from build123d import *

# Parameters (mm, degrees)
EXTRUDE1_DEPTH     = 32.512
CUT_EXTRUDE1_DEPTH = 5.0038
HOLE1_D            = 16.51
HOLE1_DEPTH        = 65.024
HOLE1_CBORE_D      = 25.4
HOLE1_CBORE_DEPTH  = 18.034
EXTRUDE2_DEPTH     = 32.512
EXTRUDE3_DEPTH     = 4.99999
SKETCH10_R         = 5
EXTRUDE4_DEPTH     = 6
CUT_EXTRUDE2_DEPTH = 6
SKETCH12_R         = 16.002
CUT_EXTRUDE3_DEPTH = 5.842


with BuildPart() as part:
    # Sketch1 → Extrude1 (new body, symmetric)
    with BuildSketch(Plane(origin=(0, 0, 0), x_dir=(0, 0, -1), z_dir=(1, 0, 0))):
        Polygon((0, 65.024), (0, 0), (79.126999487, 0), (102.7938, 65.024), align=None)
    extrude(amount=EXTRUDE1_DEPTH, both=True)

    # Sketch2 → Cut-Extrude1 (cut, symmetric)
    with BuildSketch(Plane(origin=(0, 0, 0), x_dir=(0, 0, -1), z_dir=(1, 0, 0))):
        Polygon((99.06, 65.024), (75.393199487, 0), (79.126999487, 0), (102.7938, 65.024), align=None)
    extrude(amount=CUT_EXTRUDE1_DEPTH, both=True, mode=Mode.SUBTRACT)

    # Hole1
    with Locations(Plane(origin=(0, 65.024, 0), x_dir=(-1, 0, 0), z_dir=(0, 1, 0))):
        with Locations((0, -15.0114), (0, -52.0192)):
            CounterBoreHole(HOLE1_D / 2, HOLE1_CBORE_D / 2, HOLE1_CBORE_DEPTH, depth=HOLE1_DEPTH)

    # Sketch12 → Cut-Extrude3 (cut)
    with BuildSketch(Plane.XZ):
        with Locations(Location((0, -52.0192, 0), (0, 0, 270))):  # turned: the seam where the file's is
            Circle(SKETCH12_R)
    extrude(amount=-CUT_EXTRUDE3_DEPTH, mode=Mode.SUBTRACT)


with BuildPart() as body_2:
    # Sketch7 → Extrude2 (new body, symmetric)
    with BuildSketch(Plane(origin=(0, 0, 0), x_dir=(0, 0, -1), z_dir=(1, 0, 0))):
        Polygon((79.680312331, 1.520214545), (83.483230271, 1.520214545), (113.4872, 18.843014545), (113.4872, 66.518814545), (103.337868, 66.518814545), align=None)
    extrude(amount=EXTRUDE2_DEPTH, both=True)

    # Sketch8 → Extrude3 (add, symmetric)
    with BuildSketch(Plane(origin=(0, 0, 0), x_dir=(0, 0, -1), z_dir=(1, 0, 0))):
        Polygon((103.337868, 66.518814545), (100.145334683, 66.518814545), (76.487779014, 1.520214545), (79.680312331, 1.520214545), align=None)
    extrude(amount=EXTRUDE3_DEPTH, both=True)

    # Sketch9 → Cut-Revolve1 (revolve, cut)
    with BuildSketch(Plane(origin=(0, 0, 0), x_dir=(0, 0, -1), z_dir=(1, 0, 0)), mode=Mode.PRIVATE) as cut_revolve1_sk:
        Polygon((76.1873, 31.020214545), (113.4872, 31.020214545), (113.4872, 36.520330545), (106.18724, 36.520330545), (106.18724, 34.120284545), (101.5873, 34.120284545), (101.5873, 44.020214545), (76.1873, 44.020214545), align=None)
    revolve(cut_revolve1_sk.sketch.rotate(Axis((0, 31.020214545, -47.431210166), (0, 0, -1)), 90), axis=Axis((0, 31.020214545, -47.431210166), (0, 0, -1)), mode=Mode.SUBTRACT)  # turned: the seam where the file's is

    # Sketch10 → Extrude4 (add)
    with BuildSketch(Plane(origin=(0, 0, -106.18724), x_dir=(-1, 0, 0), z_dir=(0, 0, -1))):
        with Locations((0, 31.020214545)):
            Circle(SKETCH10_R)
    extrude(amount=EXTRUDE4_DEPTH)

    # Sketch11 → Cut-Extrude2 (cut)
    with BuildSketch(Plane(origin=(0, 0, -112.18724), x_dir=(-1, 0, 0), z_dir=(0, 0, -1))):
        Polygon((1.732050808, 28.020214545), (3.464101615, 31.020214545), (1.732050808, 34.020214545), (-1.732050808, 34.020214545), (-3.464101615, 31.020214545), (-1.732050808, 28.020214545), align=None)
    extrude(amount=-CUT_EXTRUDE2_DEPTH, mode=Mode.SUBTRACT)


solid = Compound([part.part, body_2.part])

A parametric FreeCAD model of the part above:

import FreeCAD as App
import Part
import Sketcher
from FreeCAD import Vector
Q = App.Units.Quantity

doc = App.newDocument("Part")
body = doc.addObject("PartDesign::Body", "Body")

sketch1 = doc.addObject("Sketcher::SketchObject", "Sketch")
body.addObject(sketch1)
sketch1.AttachmentSupport = (doc.YZ_Plane, [""])
sketch1.MapMode = "FlatFace"
sketch1.addGeometry(Part.LineSegment(Vector(65, 0, 0), Vector(0, 0, 0)), False)
sketch1.addGeometry(Part.LineSegment(Vector(0, 0, 0), Vector(0, -79, 0)), False)
sketch1.addGeometry(Part.LineSegment(Vector(0, -79, 0), Vector(65, -103, 0)), False)
sketch1.addGeometry(Part.LineSegment(Vector(65, -103, 0), Vector(65, 0, 0)), False)
sketch1.addConstraint(Sketcher.Constraint("Coincident", 0, 2, 1, 1))
sketch1.addConstraint(Sketcher.Constraint("Coincident", 1, 2, 2, 1))
sketch1.addConstraint(Sketcher.Constraint("Coincident", 2, 2, 3, 1))
sketch1.addConstraint(Sketcher.Constraint("Coincident", 3, 2, 0, 1))
sketch1.addConstraint(Sketcher.Constraint("Horizontal", 0))
sketch1.addConstraint(Sketcher.Constraint("Vertical", 1))
sketch1.addConstraint(Sketcher.Constraint("Vertical", 3))
sketch1.addConstraint(Sketcher.Constraint("Coincident", 0, 2, -1, 1))
sketch1.addConstraint(Sketcher.Constraint("Angle", 2, Q("-20 deg")))
sketch1.addConstraint(Sketcher.Constraint("DistanceX", 0, 2, 0, 1, Q("2.56 in")))
sketch1.addConstraint(Sketcher.Constraint("DistanceY", 3, 1, 3, 2, Q("4.047 in")))
pad1 = doc.addObject("PartDesign::Pad", "Pad")
body.addObject(pad1)
pad1.Profile = sketch1
pad1.Length = Q("2.56 in")
pad1.Midplane = True

sketch2 = doc.addObject("Sketcher::SketchObject", "Sketch001")
body.addObject(sketch2)
sketch2.AttachmentSupport = (doc.YZ_Plane, [""])
sketch2.MapMode = "FlatFace"
sketch2.addGeometry(Part.LineSegment(Vector(65, -99.1, 0), Vector(0, -75.4, 0)), False)
sketch2.addGeometry(Part.LineSegment(Vector(0, -75.4, 0), Vector(0, -79.1, 0)), False)
sketch2.addGeometry(Part.LineSegment(Vector(0, -79.1, 0), Vector(65, -102.8, 0)), False)
sketch2.addGeometry(Part.LineSegment(Vector(65, -102.8, 0), Vector(65, -99.1, 0)), False)
sketch2.addConstraint(Sketcher.Constraint("Coincident", 0, 2, 1, 1))
sketch2.addConstraint(Sketcher.Constraint("Coincident", 1, 2, 2, 1))
sketch2.addConstraint(Sketcher.Constraint("Coincident", 2, 2, 3, 1))
sketch2.addConstraint(Sketcher.Constraint("Coincident", 3, 2, 0, 1))
sketch2.addConstraint(Sketcher.Constraint("Vertical", 1))
sketch2.addConstraint(Sketcher.Constraint("Vertical", 3))
sketch2.addConstraint(Sketcher.Constraint("PointOnObject", 0, 2, -2))
sketch2.addConstraint(Sketcher.Constraint("Parallel", 0, 2))
sketch2.addConstraint(Sketcher.Constraint("Angle", 0, Q("160 deg")))
sketch2.addConstraint(Sketcher.Constraint("DistanceY", 3, 2, -1, 1, Q("3.9 in")))
sketch2.addConstraint(Sketcher.Constraint("DistanceY", 1, 2, 1, 1, Q("0.147 in")))
sketch2.addConstraint(Sketcher.Constraint("DistanceX", -1, 1, 2, 2, Q("2.56 in")))
pocket1 = doc.addObject("PartDesign::Pocket", "Pocket")
body.addObject(pocket1)
pocket1.Profile = sketch2
pocket1.Length = Q("0.394 in")
pocket1.Midplane = True

sketch3 = doc.addObject("Sketcher::SketchObject", "Sketch002")
body.addObject(sketch3)
sketch3.AttachmentSupport = (doc.XZ_Plane, [""])
sketch3.MapMode = "FlatFace"
sketch3.AttachmentOffset = App.Placement(Vector(0, 0, -2.56 * 25.4), App.Rotation())
sketch3.addGeometry(Part.Circle(Vector(0, -15, 0), Vector(0, 0, 1), 8), False)
sketch3.addGeometry(Part.Circle(Vector(0, -52, 0), Vector(0, 0, 1), 8), False)
sketch3.addConstraint(Sketcher.Constraint("Equal", 0, 1))
sketch3.addConstraint(Sketcher.Constraint("PointOnObject", 0, 3, -2))
sketch3.addConstraint(Sketcher.Constraint("PointOnObject", 1, 3, -2))
sketch3.addConstraint(Sketcher.Constraint("Diameter", 0, Q("0.65 in")))
sketch3.addConstraint(Sketcher.Constraint("DistanceY", 0, 3, -1, 1, Q("0.591 in")))
sketch3.addConstraint(Sketcher.Constraint("DistanceY", 1, 3, -1, 1, Q("2.048 in")))
doc.recompute()
hole = doc.addObject("PartDesign::Hole", "Hole")
body.addObject(hole)
hole.Profile = sketch3
hole.ThreadType = "None"
hole.Diameter = Q("0.65 in")
hole.DepthType = "Dimension"
hole.Depth = Q("2.56 in")
hole.DrillPoint = "Flat"
hole.HoleCutType = "Counterbore"
hole.HoleCutDiameter = Q("1 in")
hole.HoleCutDepth = Q("0.71 in")
hole.Reversed = True

sketch4 = doc.addObject("Sketcher::SketchObject", "Sketch003")
body.addObject(sketch4)
sketch4.AttachmentSupport = (doc.XZ_Plane, [""])
sketch4.MapMode = "FlatFace"
sketch4.addGeometry(Part.Circle(Vector(0, -52, 0), Vector(0, 0, 1), 16), False)
sketch4.addConstraint(Sketcher.Constraint("PointOnObject", 0, 3, -2))
sketch4.addConstraint(Sketcher.Constraint("Diameter", 0, Q("1.26 in")))
sketch4.addConstraint(Sketcher.Constraint("DistanceY", 0, 3, -1, 1, Q("2.048 in")))
pocket2 = doc.addObject("PartDesign::Pocket", "Pocket001")
body.addObject(pocket2)
pocket2.Profile = sketch4
pocket2.Length = Q("0.23 in")
body2 = doc.addObject("PartDesign::Body", "Body001")

sketch5 = doc.addObject("Sketcher::SketchObject", "Sketch004")
body2.addObject(sketch5)
sketch5.AttachmentSupport = (doc.getObject("YZ_Plane001"), [""])
sketch5.MapMode = "FlatFace"
sketch5.addGeometry(Part.LineSegment(Vector(1.5, -79.7, 0), Vector(1.5, -83.5, 0)), False)
sketch5.addGeometry(Part.LineSegment(Vector(1.5, -83.5, 0), Vector(18.8, -113.5, 0)), False)
sketch5.addGeometry(Part.LineSegment(Vector(18.8, -113.5, 0), Vector(66.5, -113.5, 0)), False)
sketch5.addGeometry(Part.LineSegment(Vector(66.5, -113.5, 0), Vector(66.5, -103.3, 0)), False)
sketch5.addGeometry(Part.LineSegment(Vector(66.5, -103.3, 0), Vector(1.5, -79.7, 0)), False)
sketch5.addConstraint(Sketcher.Constraint("Coincident", 0, 2, 1, 1))
sketch5.addConstraint(Sketcher.Constraint("Coincident", 1, 2, 2, 1))
sketch5.addConstraint(Sketcher.Constraint("Coincident", 2, 2, 3, 1))
sketch5.addConstraint(Sketcher.Constraint("Coincident", 3, 2, 4, 1))
sketch5.addConstraint(Sketcher.Constraint("Coincident", 4, 2, 0, 1))
sketch5.addConstraint(Sketcher.Constraint("Vertical", 0))
sketch5.addConstraint(Sketcher.Constraint("Horizontal", 2))
sketch5.addConstraint(Sketcher.Constraint("Vertical", 3))
sketch5.addConstraint(Sketcher.Constraint("Angle", 1, Q("-60 deg")))
sketch5.addConstraint(Sketcher.Constraint("Angle", 4, Q("160 deg")))
sketch5.addConstraint(Sketcher.Constraint("DistanceX", 2, 1, 2, 2, Q("1.877 in")))
sketch5.addConstraint(Sketcher.Constraint("Distance", 1, Q("1.364 in")))
sketch5.addConstraint(Sketcher.Constraint("DistanceY", 1, 2, -1, 1, Q("4.468 in")))
sketch5.addConstraint(Sketcher.Constraint("DistanceY", 0, 2, 0, 1, Q("3.802918 mm")))
sketch5.addConstraint(Sketcher.Constraint("DistanceX", -1, 1, 0, 2, Q("1.520215 mm")))
pad2 = doc.addObject("PartDesign::Pad", "Pad001")
body2.addObject(pad2)
pad2.Profile = sketch5
pad2.Length = Q("2.56 in")
pad2.Midplane = True

sketch6 = doc.addObject("Sketcher::SketchObject", "Sketch005")
body2.addObject(sketch6)
sketch6.AttachmentSupport = (doc.getObject("YZ_Plane001"), [""])
sketch6.MapMode = "FlatFace"
sketch6.addGeometry(Part.LineSegment(Vector(66.5, -103.3, 0), Vector(66.5, -100.1, 0)), False)
sketch6.addGeometry(Part.LineSegment(Vector(66.5, -100.1, 0), Vector(1.5, -76.5, 0)), False)
sketch6.addGeometry(Part.LineSegment(Vector(1.5, -76.5, 0), Vector(1.5, -79.7, 0)), False)
sketch6.addGeometry(Part.LineSegment(Vector(1.5, -79.7, 0), Vector(66.5, -103.3, 0)), False)
sketch6.addConstraint(Sketcher.Constraint("Coincident", 0, 2, 1, 1))
sketch6.addConstraint(Sketcher.Constraint("Coincident", 1, 2, 2, 1))
sketch6.addConstraint(Sketcher.Constraint("Coincident", 2, 2, 3, 1))
sketch6.addConstraint(Sketcher.Constraint("Coincident", 3, 2, 0, 1))
sketch6.addConstraint(Sketcher.Constraint("Vertical", 0))
sketch6.addConstraint(Sketcher.Constraint("Vertical", 2))
sketch6.addConstraint(Sketcher.Constraint("Parallel", 1, 3))
sketch6.addConstraint(Sketcher.Constraint("Angle", 1, Q("160 deg")))
sketch6.addConstraint(Sketcher.Constraint("DistanceX", 1, 2, 0, 2, Q("2.559 in")))
sketch6.addConstraint(Sketcher.Constraint("DistanceY", 0, 1, 0, 2, Q("3.192533 mm")))
sketch6.addConstraint(Sketcher.Constraint("DistanceY", 1, 2, -1, 1, Q("76.487779 mm")))
sketch6.addConstraint(Sketcher.Constraint("DistanceX", -1, 1, 0, 2, Q("66.518815 mm")))
pad3 = doc.addObject("PartDesign::Pad", "Pad002")
body2.addObject(pad3)
pad3.Profile = sketch6
pad3.Length = Q("0.3937 in")
pad3.Midplane = True

sketch7 = doc.addObject("Sketcher::SketchObject", "Sketch006")
body2.addObject(sketch7)
sketch7.AttachmentSupport = (doc.getObject("YZ_Plane001"), [""])
sketch7.MapMode = "FlatFace"
sketch7.addGeometry(Part.LineSegment(Vector(31, -76.2, 0), Vector(31, -113.5, 0)), False)
sketch7.addGeometry(Part.LineSegment(Vector(31, -113.5, 0), Vector(36.5, -113.5, 0)), False)
sketch7.addGeometry(Part.LineSegment(Vector(36.5, -113.5, 0), Vector(36.5, -106.2, 0)), False)
sketch7.addGeometry(Part.LineSegment(Vector(36.5, -106.2, 0), Vector(34.1, -106.2, 0)), False)
sketch7.addGeometry(Part.LineSegment(Vector(34.1, -106.2, 0), Vector(34.1, -101.6, 0)), False)
sketch7.addGeometry(Part.LineSegment(Vector(34.1, -101.6, 0), Vector(44, -101.6, 0)), False)
sketch7.addGeometry(Part.LineSegment(Vector(44, -101.6, 0), Vector(44, -76.2, 0)), False)
sketch7.addGeometry(Part.LineSegment(Vector(44, -76.2, 0), Vector(31, -76.2, 0)), False)
sketch7.addGeometry(Part.LineSegment(Vector(31, -76.2, 0), Vector(31, -113.5, 0)), True)
sketch7.addConstraint(Sketcher.Constraint("Coincident", 0, 2, 1, 1))
sketch7.addConstraint(Sketcher.Constraint("Coincident", 1, 2, 2, 1))
sketch7.addConstraint(Sketcher.Constraint("Coincident", 2, 2, 3, 1))
sketch7.addConstraint(Sketcher.Constraint("Coincident", 3, 2, 4, 1))
sketch7.addConstraint(Sketcher.Constraint("Coincident", 4, 2, 5, 1))
sketch7.addConstraint(Sketcher.Constraint("Coincident", 5, 2, 6, 1))
sketch7.addConstraint(Sketcher.Constraint("Coincident", 6, 2, 7, 1))
sketch7.addConstraint(Sketcher.Constraint("Coincident", 7, 2, 0, 1))
sketch7.addConstraint(Sketcher.Constraint("Vertical", 0))
sketch7.addConstraint(Sketcher.Constraint("Horizontal", 1))
sketch7.addConstraint(Sketcher.Constraint("Vertical", 2))
sketch7.addConstraint(Sketcher.Constraint("Horizontal", 3))
sketch7.addConstraint(Sketcher.Constraint("Vertical", 4))
sketch7.addConstraint(Sketcher.Constraint("Horizontal", 5))
sketch7.addConstraint(Sketcher.Constraint("Vertical", 6))
sketch7.addConstraint(Sketcher.Constraint("Horizontal", 7))
sketch7.addConstraint(Sketcher.Constraint("Vertical", 8))
sketch7.addConstraint(Sketcher.Constraint("Coincident", 8, 1, 7, 2))
sketch7.addConstraint(Sketcher.Constraint("Horizontal", 1, 2, 8, 2))
sketch7.addConstraint(Sketcher.Constraint("DistanceY", 6, 1, 6, 2, Q("1 in")))
sketch7.addConstraint(Sketcher.Constraint("DistanceY", 0, 2, 0, 1, Q("1.4685 in")))
sketch7.addConstraint(Sketcher.Constraint("DistanceY", 2, 1, 2, 2, Q("0.2874 in")))
sketch7.addConstraint(Sketcher.Constraint("DistanceY", 0, 2, -1, 1, Q("4.468 in")))
sketch7.addConstraint(Sketcher.Constraint("DistanceX", 7, 2, 7, 1, Q("13 mm")))
sketch7.addConstraint(Sketcher.Constraint("DistanceX", 5, 1, 5, 2, Q("9.89993 mm")))
sketch7.addConstraint(Sketcher.Constraint("DistanceX", 1, 1, 1, 2, Q("5.500116 mm")))
sketch7.addConstraint(Sketcher.Constraint("DistanceX", -1, 1, 1, 2, Q("36.520331 mm")))
groove = doc.addObject("PartDesign::Groove", "Groove")
body2.addObject(groove)
groove.Profile = sketch7
groove.ReferenceAxis = (sketch7, ["Axis0"])
groove.Angle = 360

sketch8 = doc.addObject("Sketcher::SketchObject", "Sketch007")
body2.addObject(sketch8)
sketch8.AttachmentSupport = (doc.getObject("XY_Plane001"), [""])
sketch8.MapMode = "FlatFace"
sketch8.AttachmentOffset = App.Placement(Vector(0, 0, -4.1806 * 25.4), App.Rotation())
sketch8.addGeometry(Part.Circle(Vector(0, 31, 0), Vector(0, 0, 1), 5), False)
sketch8.addConstraint(Sketcher.Constraint("PointOnObject", 0, 3, -2))
sketch8.addConstraint(Sketcher.Constraint("Diameter", 0, Q("10 mm")))
sketch8.addConstraint(Sketcher.Constraint("DistanceY", -1, 1, 0, 3, Q("31.020215 mm")))
pad4 = doc.addObject("PartDesign::Pad", "Pad003")
body2.addObject(pad4)
pad4.Profile = sketch8
pad4.Length = 6
pad4.Reversed = True

sketch9 = doc.addObject("Sketcher::SketchObject", "Sketch008")
body2.addObject(sketch9)
sketch9.AttachmentSupport = (doc.getObject("XY_Plane001"), [""])
sketch9.MapMode = "FlatFace"
sketch9.AttachmentOffset = App.Placement(Vector(0, 0, -112.18724), App.Rotation())
sketch9.addGeometry(Part.LineSegment(Vector(-1.7, 28, 0), Vector(-3.5, 31, 0)), False)
sketch9.addGeometry(Part.LineSegment(Vector(-3.5, 31, 0), Vector(-1.7, 34, 0)), False)
sketch9.addGeometry(Part.LineSegment(Vector(-1.7, 34, 0), Vector(1.7, 34, 0)), False)
sketch9.addGeometry(Part.LineSegment(Vector(1.7, 34, 0), Vector(3.5, 31, 0)), False)
sketch9.addGeometry(Part.LineSegment(Vector(3.5, 31, 0), Vector(1.7, 28, 0)), False)
sketch9.addGeometry(Part.LineSegment(Vector(1.7, 28, 0), Vector(-1.7, 28, 0)), False)
sketch9.addConstraint(Sketcher.Constraint("Coincident", 0, 2, 1, 1))
sketch9.addConstraint(Sketcher.Constraint("Coincident", 1, 2, 2, 1))
sketch9.addConstraint(Sketcher.Constraint("Coincident", 2, 2, 3, 1))
sketch9.addConstraint(Sketcher.Constraint("Coincident", 3, 2, 4, 1))
sketch9.addConstraint(Sketcher.Constraint("Coincident", 4, 2, 5, 1))
sketch9.addConstraint(Sketcher.Constraint("Coincident", 5, 2, 0, 1))
sketch9.addConstraint(Sketcher.Constraint("Horizontal", 2))
sketch9.addConstraint(Sketcher.Constraint("Horizontal", 5))
sketch9.addConstraint(Sketcher.Constraint("Symmetric", 0, 2, 3, 2, -2))
sketch9.addConstraint(Sketcher.Constraint("Parallel", 0, 3))
sketch9.addConstraint(Sketcher.Constraint("Parallel", 1, 4))
sketch9.addConstraint(Sketcher.Constraint("Vertical", 2, 2, 4, 2))
sketch9.addConstraint(Sketcher.Constraint("Vertical", 1, 2, 5, 2))
sketch9.addConstraint(Sketcher.Constraint("Angle", 0, Q("120 deg")))
sketch9.addConstraint(Sketcher.Constraint("DistanceX", 2, 1, 2, 2, Q("3.464102 mm")))
sketch9.addConstraint(Sketcher.Constraint("Distance", 0, Q("3.464102 mm")))
sketch9.addConstraint(Sketcher.Constraint("DistanceY", -1, 1, 0, 2, Q("31.020215 mm")))
pocket3 = doc.addObject("PartDesign::Pocket", "Pocket002")
body2.addObject(pocket3)
pocket3.Profile = sketch9
pocket3.Length = 6
pocket3.Reversed = True

doc.recompute()
